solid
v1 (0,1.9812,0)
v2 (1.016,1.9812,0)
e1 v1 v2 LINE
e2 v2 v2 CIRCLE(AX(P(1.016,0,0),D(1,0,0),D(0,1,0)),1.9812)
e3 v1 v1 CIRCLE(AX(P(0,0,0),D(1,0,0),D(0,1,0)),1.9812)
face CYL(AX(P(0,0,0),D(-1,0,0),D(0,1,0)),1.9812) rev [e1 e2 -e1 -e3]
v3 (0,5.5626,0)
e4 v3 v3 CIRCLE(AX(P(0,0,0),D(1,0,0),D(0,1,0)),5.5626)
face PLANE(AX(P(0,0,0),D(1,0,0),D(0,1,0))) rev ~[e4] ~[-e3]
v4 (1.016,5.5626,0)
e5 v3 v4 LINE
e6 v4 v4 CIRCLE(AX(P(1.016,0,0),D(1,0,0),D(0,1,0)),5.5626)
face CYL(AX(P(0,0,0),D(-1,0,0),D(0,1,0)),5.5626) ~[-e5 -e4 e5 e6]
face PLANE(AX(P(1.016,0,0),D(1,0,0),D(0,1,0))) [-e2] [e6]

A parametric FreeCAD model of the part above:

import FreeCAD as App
import Part
import Sketcher
Q = App.Units.Quantity

doc = App.newDocument("Part")
body = doc.addObject("PartDesign::Body", "Body")

# Sketch on YZ plane
sketch1 = doc.addObject("Sketcher::SketchObject", "Sketch")
body.addObject(sketch1)
sketch1.AttachmentSupport = (doc.YZ_Plane, [""])
sketch1.MapMode = "FlatFace"
sketch1.addGeometry([
    Part.Circle(App.Vector(0, 0, 0), App.Vector(0, 0, 1), 5.5626),
    Part.Circle(App.Vector(0, 0, 0), App.Vector(0, 0, 1), 1.9812),
], False)
sketch1.addConstraint([
    Sketcher.Constraint("Coincident", 0, 3, -1, 1),
    Sketcher.Constraint("Coincident", 1, 3, -1, 1),
    Sketcher.Constraint("Diameter", 0, Q("0.438 in")),
    Sketcher.Constraint("Diameter", 1, Q("0.156 in")),
])
pad1 = doc.addObject("PartDesign::Pad", "Pad")
body.addObject(pad1)
pad1.Profile = sketch1
pad1.Length = Q("0.04 in")

doc.recompute()
